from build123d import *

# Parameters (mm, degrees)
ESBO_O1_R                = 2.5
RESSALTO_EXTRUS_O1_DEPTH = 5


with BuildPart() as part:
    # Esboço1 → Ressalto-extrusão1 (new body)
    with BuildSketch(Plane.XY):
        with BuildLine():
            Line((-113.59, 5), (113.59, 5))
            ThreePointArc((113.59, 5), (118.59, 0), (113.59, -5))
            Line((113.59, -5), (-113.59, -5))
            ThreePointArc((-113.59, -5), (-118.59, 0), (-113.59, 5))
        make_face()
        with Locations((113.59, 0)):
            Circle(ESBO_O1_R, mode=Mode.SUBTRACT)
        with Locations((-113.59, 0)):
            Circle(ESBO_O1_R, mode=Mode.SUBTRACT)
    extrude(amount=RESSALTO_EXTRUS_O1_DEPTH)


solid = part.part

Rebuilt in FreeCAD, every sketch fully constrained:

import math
import FreeCAD as App
import Part
import Sketcher

doc = App.newDocument("Part")
params = doc.addObject("Spreadsheet::Sheet", "Params")
for row, (alias, value) in enumerate([
    ("sketch1_diameter", "5 mm"),
    ("sketch1_radius", "5 mm"),
    ("sketch1_width", "227.18 mm"),
    ("pad1_length", "5 mm"),
], start=1):
    params.set(f"A{row}", alias)
    params.set(f"B{row}", "=" + value)
    params.setAlias(f"B{row}", alias)

body = doc.addObject("PartDesign::Body", "Body")

# Sketch on XY plane
sketch1 = body.newObject("Sketcher::SketchObject", "Sketch")
sketch1.AttachmentSupport = (doc.getObject("XY_Plane"), [""])
sketch1.MapMode = "FlatFace"
sketch1.addGeometry(Part.LineSegment(App.Vector(113.6, 5, 0), App.Vector(-113.6, 5, 0)), False)
sketch1.addGeometry(Part.ArcOfCircle(Part.Circle(App.Vector(-113.6, 0, 0), App.Vector(0, 0, 1), 5), math.radians(90), math.radians(270)), False)
sketch1.addGeometry(Part.LineSegment(App.Vector(-113.6, -5, 0), App.Vector(113.6, -5, 0)), False)
sketch1.addGeometry(Part.ArcOfCircle(Part.Circle(App.Vector(113.6, 0, 0), App.Vector(0, 0, 1), 5), math.radians(-90), math.radians(90)), False)
sketch1.addGeometry(Part.Circle(App.Vector(113.6, 0, 0), App.Vector(0, 0, 1), 2.5), False)
sketch1.addGeometry(Part.Circle(App.Vector(-113.6, 0, 0), App.Vector(0, 0, 1), 2.5), False)
sketch1.addConstraint(Sketcher.Constraint("Tangent", 0, 2, 1, 1))
sketch1.addConstraint(Sketcher.Constraint("Tangent", 1, 2, 2, 1))
sketch1.addConstraint(Sketcher.Constraint("Tangent", 2, 2, 3, 1))
sketch1.addConstraint(Sketcher.Constraint("Tangent", 3, 2, 0, 1))
sketch1.addConstraint(Sketcher.Constraint("Horizontal", 0))
sketch1.addConstraint(Sketcher.Constraint("Horizontal", 2))
sketch1.addConstraint(Sketcher.Constraint("Coincident", 4, 3, 3, 3))
sketch1.addConstraint(Sketcher.Constraint("Coincident", 5, 3, 1, 3))
sketch1.addConstraint(Sketcher.Constraint("Equal", 4, 5))
sketch1.addConstraint(Sketcher.Constraint("Symmetric", 1, 3, 3, 3, -1, 1))
sketch1.addConstraint(Sketcher.Constraint("Diameter", 4, 5.0))
sketch1.addConstraint(Sketcher.Constraint("Radius", 1, 5.0))
sketch1.addConstraint(Sketcher.Constraint("DistanceX", 0, 2, 0, 1, 227.18))
sketch1.setExpression("Constraints[10]", "Params.sketch1_diameter")
sketch1.setExpression("Constraints[11]", "Params.sketch1_radius")
sketch1.setExpression("Constraints[12]", "Params.sketch1_width")
pad1 = body.newObject("PartDesign::Pad", "Pad")
pad1.Profile = sketch1
pad1.setExpression("Length", "Params.pad1_length")

doc.recompute()
